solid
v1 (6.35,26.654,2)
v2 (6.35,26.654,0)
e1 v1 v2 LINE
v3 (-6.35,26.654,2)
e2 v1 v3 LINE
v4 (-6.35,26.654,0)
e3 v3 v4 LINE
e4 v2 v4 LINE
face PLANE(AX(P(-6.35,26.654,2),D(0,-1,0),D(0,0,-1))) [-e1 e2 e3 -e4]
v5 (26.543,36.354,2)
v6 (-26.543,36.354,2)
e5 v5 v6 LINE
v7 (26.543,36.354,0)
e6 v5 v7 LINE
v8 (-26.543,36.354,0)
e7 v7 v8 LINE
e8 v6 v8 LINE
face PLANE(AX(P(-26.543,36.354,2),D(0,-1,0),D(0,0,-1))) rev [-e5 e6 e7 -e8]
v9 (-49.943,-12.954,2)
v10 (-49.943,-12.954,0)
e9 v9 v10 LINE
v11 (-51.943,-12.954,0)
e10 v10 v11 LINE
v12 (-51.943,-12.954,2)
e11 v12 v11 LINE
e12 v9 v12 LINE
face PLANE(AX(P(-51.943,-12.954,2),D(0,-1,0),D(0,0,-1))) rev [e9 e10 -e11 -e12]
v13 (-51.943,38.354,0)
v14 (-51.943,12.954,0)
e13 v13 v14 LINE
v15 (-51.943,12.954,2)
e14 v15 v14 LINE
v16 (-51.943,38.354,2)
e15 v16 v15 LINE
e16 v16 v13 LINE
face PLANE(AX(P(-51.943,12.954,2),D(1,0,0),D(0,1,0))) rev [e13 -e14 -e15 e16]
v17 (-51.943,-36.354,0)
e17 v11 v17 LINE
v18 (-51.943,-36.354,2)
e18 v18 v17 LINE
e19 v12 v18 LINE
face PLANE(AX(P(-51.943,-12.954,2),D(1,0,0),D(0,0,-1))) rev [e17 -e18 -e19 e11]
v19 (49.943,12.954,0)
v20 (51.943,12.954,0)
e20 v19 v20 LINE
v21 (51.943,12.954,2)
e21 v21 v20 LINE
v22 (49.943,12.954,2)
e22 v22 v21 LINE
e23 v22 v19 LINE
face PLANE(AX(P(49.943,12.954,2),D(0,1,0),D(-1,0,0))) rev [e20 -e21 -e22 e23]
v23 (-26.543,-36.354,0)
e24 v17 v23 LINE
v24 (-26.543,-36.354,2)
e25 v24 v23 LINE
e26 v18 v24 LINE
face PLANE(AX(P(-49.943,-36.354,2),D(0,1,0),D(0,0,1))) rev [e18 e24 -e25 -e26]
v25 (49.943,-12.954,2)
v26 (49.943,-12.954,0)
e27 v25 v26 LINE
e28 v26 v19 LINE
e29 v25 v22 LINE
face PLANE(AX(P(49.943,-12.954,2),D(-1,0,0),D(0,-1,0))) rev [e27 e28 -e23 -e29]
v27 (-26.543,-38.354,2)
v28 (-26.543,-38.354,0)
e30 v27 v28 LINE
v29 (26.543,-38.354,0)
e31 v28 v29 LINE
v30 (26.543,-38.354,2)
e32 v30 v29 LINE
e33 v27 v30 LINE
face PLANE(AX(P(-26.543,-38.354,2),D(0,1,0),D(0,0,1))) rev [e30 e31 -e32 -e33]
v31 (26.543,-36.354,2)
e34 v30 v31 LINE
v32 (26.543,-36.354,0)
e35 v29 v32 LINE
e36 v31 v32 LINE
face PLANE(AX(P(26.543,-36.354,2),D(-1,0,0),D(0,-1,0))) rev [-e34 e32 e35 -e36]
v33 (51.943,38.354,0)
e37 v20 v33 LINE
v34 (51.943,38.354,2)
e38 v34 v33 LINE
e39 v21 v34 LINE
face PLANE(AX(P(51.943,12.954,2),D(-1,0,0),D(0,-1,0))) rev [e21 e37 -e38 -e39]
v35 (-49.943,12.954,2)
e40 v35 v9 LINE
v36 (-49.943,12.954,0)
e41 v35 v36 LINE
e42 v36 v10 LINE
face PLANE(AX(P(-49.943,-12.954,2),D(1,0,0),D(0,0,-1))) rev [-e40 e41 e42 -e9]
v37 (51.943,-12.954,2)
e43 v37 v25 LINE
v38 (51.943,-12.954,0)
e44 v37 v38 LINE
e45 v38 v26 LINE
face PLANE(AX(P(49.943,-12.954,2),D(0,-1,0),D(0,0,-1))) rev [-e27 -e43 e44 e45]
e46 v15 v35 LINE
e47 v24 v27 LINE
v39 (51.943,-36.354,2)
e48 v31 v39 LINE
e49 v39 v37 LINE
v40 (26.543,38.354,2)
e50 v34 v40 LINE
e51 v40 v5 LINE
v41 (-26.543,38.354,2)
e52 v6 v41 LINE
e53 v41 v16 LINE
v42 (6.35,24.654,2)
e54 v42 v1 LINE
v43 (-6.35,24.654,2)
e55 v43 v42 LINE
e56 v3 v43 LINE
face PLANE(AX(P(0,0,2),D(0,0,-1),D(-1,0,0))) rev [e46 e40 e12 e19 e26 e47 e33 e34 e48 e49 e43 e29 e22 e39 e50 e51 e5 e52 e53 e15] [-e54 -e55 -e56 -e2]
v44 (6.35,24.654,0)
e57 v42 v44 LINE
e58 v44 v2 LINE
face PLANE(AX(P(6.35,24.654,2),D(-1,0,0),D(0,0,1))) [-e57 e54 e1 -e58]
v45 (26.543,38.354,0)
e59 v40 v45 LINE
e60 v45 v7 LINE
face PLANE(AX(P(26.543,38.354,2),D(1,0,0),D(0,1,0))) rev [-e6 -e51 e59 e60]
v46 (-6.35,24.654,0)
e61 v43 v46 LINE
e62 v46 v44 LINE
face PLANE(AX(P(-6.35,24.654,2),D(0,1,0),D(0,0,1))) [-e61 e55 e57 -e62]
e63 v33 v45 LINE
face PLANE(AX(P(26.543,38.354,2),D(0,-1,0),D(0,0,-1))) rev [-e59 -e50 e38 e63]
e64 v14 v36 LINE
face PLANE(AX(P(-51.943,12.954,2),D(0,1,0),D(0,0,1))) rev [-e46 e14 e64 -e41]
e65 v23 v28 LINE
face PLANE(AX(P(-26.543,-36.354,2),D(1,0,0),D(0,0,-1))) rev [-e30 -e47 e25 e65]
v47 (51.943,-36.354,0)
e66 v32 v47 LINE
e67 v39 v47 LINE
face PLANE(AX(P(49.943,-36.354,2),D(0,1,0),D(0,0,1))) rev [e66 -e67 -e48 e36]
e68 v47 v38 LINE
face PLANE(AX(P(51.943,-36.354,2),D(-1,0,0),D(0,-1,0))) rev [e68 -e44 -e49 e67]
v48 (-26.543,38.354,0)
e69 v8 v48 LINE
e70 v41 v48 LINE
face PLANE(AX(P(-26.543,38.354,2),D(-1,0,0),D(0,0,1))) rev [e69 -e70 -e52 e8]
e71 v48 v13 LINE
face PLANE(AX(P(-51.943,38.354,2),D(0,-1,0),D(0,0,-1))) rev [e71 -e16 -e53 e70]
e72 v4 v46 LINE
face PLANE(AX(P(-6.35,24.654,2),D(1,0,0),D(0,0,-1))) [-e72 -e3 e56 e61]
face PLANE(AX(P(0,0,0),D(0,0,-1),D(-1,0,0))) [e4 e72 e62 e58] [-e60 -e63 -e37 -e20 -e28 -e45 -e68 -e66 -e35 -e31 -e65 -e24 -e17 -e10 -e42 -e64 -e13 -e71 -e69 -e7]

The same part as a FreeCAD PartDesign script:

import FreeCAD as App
import Part
import Sketcher

V = App.Vector
Q = App.Units.Quantity


def add_polygon(sketch, points):
    """Adds a closed chain of lines whose ends are joined by coincident constraints."""
    first, n = sketch.GeometryCount, len(points)
    for a, b in zip(points, points[1:] + points[:1]):
        sketch.addGeometry(Part.LineSegment(App.Vector(*a, 0), App.Vector(*b, 0)), False)
    for i in range(n):
        sketch.addConstraint(Sketcher.Constraint("Coincident", first + i, 2, first + (i + 1) % n, 1))

doc = App.newDocument("Part")
body = doc.addObject("PartDesign::Body", "Body")

# Sketch on XY plane
sketch1 = doc.addObject("Sketcher::SketchObject", "Sketch")
body.addObject(sketch1)
sketch1.AttachmentSupport = (doc.XY_Plane, [""])
sketch1.MapMode = "FlatFace"
add_polygon(sketch1, [(26.5, 36.4), (-26.5, 36.4), (-26.5, 38.4), (-51.9, 38.4), (-51.9, 13), (-49.9, 13), (-49.9, -13), (-51.9, -13), (-51.9, -36.4), (-26.5, -36.4), (-26.5, -38.4), (26.5, -38.4), (26.5, -36.4), (51.9, -36.4), (51.9, -13), (49.9, -13), (49.9, 13), (51.9, 13), (51.9, 38.4), (26.5, 38.4)])  # lines 0-19
add_polygon(sketch1, [(-6.3, 24.7), (-6.3, 26.7), (6.3, 26.7), (6.3, 24.7)])  # lines 20-23
sketch1.addConstraint(Sketcher.Constraint("Horizontal", 0))
sketch1.addConstraint(Sketcher.Constraint("Vertical", 1))
sketch1.addConstraint(Sketcher.Constraint("Horizontal", 2))
sketch1.addConstraint(Sketcher.Constraint("Vertical", 3))
sketch1.addConstraint(Sketcher.Constraint("Horizontal", 4))
sketch1.addConstraint(Sketcher.Constraint("Vertical", 5))
sketch1.addConstraint(Sketcher.Constraint("Horizontal", 6))
sketch1.addConstraint(Sketcher.Constraint("Vertical", 7))
sketch1.addConstraint(Sketcher.Constraint("Horizontal", 8))
sketch1.addConstraint(Sketcher.Constraint("Vertical", 9))
sketch1.addConstraint(Sketcher.Constraint("Horizontal", 10))
sketch1.addConstraint(Sketcher.Constraint("Vertical", 11))
sketch1.addConstraint(Sketcher.Constraint("Horizontal", 12))
sketch1.addConstraint(Sketcher.Constraint("Vertical", 13))
sketch1.addConstraint(Sketcher.Constraint("Horizontal", 14))
sketch1.addConstraint(Sketcher.Constraint("Vertical", 15))
sketch1.addConstraint(Sketcher.Constraint("Horizontal", 16))
sketch1.addConstraint(Sketcher.Constraint("Vertical", 17))
sketch1.addConstraint(Sketcher.Constraint("Horizontal", 18))
sketch1.addConstraint(Sketcher.Constraint("Vertical", 19))
sketch1.addConstraint(Sketcher.Constraint("Vertical", 20))
sketch1.addConstraint(Sketcher.Constraint("Horizontal", 21))
sketch1.addConstraint(Sketcher.Constraint("Vertical", 22))
sketch1.addConstraint(Sketcher.Constraint("Horizontal", 23))
sketch1.addConstraint(Sketcher.Constraint("Symmetric", 1, 2, 10, 2, -1, 1))
sketch1.addConstraint(Sketcher.Constraint("Symmetric", 3, 2, 13, 2, -1, 1))
sketch1.addConstraint(Sketcher.Constraint("Symmetric", 5, 2, 15, 2, -1, 1))
sketch1.addConstraint(Sketcher.Constraint("Symmetric", 9, 2, 18, 2, -1, 1))
sketch1.addConstraint(Sketcher.Constraint("Symmetric", 8, 2, 11, 2, -2))
sketch1.addConstraint(Sketcher.Constraint("Symmetric", 6, 2, 13, 2, -2))
sketch1.addConstraint(Sketcher.Constraint("Vertical", 13, 2, 16, 2))
sketch1.addConstraint(Sketcher.Constraint("Equal", 16, 1))
sketch1.addConstraint(Sketcher.Constraint("Equal", 18, 3))
sketch1.addConstraint(Sketcher.Constraint("Equal", 1, 9))
sketch1.addConstraint(Sketcher.Constraint("Equal", 19, 20))
sketch1.addConstraint(Sketcher.Constraint("DistanceX", 2, 2, 2, 1, Q("1 in")))
sketch1.addConstraint(Sketcher.Constraint("DistanceX", 21, 1, 21, 2, Q("0.5 in")))
sketch1.addConstraint(Sketcher.Constraint("DistanceX", 0, 2, 0, 1, Q("2.09 in")))
sketch1.addConstraint(Sketcher.Constraint("DistanceY", 5, 2, 5, 1, Q("1.02 in")))
sketch1.addConstraint(Sketcher.Constraint("DistanceX", 20, 2, -1, 1, Q("0.25 in")))
sketch1.addConstraint(Sketcher.Constraint("DistanceX", 4, 1, 4, 2, Q("2 mm")))
sketch1.addConstraint(Sketcher.Constraint("DistanceY", -1, 1, 20, 2, Q("26.654 mm")))
pad1 = doc.addObject("PartDesign::Pad", "Pad")
body.addObject(pad1)
pad1.Profile = sketch1
pad1.Length = 2

doc.recompute()
